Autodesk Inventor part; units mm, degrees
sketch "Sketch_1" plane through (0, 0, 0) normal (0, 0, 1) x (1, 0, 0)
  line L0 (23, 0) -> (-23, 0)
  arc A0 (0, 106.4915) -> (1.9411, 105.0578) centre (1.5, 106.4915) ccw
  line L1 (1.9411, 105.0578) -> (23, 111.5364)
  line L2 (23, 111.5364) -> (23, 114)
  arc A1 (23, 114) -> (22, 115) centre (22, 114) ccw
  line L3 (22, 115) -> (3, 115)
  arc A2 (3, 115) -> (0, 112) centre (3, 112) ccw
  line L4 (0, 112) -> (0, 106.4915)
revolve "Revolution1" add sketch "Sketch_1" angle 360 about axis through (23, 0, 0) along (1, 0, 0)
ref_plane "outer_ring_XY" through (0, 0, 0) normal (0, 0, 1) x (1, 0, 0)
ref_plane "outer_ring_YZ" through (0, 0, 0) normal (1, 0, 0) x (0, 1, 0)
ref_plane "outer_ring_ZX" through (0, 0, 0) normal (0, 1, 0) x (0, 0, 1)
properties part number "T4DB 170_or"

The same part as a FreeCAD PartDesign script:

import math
import FreeCAD as App
import Part
import Sketcher
Q = App.Units.Quantity

doc = App.newDocument("Part")
body = doc.addObject("PartDesign::Body", "Body")

# Sketch on XY plane
sketch1 = body.newObject("Sketcher::SketchObject", "Sketch")
sketch1.AttachmentSupport = (doc.getObject("XY_Plane"), [""])
sketch1.MapMode = "FlatFace"
sketch1.addGeometry([
    Part.LineSegment(App.Vector(0, 112, 0), App.Vector(0, 106.5, 0)),  # 0
    Part.ArcOfCircle(Part.Circle(App.Vector(1.5, 106.5, 0), App.Vector(0, 0, 1), 1.5), math.radians(180), math.radians(287)),  # 1
    Part.LineSegment(App.Vector(1.9, 105.1, 0), App.Vector(23, 111.5, 0)),  # 2
    Part.LineSegment(App.Vector(23, 111.5, 0), App.Vector(23, 114, 0)),  # 3
    Part.ArcOfCircle(Part.Circle(App.Vector(22, 114, 0), App.Vector(0, 0, 1), 1), math.radians(0), math.radians(90)),  # 4
    Part.LineSegment(App.Vector(22, 115, 0), App.Vector(3, 115, 0)),  # 5
    Part.ArcOfCircle(Part.Circle(App.Vector(3, 112, 0), App.Vector(0, 0, 1), 3), math.radians(90), math.radians(180)),  # 6
], False)
sketch1.addConstraint([
    Sketcher.Constraint("Tangent", 0, 2, 1, 1),
    Sketcher.Constraint("Tangent", 1, 2, 2, 1),
    Sketcher.Constraint("Coincident", 2, 2, 3, 1),
    Sketcher.Constraint("Tangent", 3, 2, 4, 1),
    Sketcher.Constraint("Tangent", 4, 2, 5, 1),
    Sketcher.Constraint("Tangent", 5, 2, 6, 1),
    Sketcher.Constraint("Tangent", 6, 2, 0, 1),
    Sketcher.Constraint("Vertical", 0),
    Sketcher.Constraint("Vertical", 3),
    Sketcher.Constraint("Horizontal", 5),
    Sketcher.Constraint("PointOnObject", 0, 2, -2),
    Sketcher.Constraint("Radius", 4, Q("1 mm")),
    Sketcher.Constraint("Radius", 6, Q("3 mm")),
    Sketcher.Constraint("Radius", 1, Q("1.5 mm")),
    Sketcher.Constraint("DistanceX", 5, 2, 5, 1, Q("19 mm")),
    Sketcher.Constraint("DistanceY", -1, 1, 4, 3, Q("114 mm")),
    Sketcher.Constraint("Angle", 2, Q("17.1 deg")),
    Sketcher.Constraint("DistanceY", 0, 2, 0, 1, Q("5.5085 mm")),
])
revolution = body.newObject("PartDesign::Revolution", "Revolution")
revolution.Profile = sketch1
revolution.ReferenceAxis = (sketch1, ["H_Axis"])
revolution.Angle = 360

doc.recompute()
